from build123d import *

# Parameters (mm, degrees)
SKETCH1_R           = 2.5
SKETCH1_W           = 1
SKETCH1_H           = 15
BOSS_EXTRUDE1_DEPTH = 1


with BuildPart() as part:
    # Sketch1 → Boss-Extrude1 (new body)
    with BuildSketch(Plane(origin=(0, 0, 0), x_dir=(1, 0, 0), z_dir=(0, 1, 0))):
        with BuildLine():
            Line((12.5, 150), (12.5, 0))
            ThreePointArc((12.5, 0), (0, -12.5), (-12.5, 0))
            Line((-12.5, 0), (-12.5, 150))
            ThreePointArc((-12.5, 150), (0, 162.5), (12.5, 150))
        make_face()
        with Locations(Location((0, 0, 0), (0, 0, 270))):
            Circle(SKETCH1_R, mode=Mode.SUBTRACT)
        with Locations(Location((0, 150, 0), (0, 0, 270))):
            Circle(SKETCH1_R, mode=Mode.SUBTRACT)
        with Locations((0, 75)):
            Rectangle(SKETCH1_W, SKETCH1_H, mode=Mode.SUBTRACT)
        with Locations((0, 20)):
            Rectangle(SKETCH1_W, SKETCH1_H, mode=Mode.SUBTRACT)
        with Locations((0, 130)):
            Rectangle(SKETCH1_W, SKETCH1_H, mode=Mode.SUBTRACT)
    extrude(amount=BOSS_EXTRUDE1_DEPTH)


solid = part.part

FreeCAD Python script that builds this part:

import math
import FreeCAD as App
import Part
import Sketcher

V = App.Vector
Q = App.Units.Quantity


def add_polygon(sketch, points):
    """Adds a closed chain of lines whose ends are joined by coincident constraints."""
    first, n = sketch.GeometryCount, len(points)
    for a, b in zip(points, points[1:] + points[:1]):
        sketch.addGeometry(Part.LineSegment(App.Vector(*a, 0), App.Vector(*b, 0)), False)
    for i in range(n):
        sketch.addConstraint(Sketcher.Constraint("Coincident", first + i, 2, first + (i + 1) % n, 1))

doc = App.newDocument("Part")
body = doc.addObject("PartDesign::Body", "Body")

# Sketch on XZ plane
sketch1 = body.newObject("Sketcher::SketchObject", "Sketch")
sketch1.AttachmentSupport = (doc.getObject("XZ_Plane"), [""])
sketch1.MapMode = "FlatFace"
sketch1.addGeometry(Part.LineSegment(V(12.5, 0, 0), V(12.5, -150, 0)), False)  # 0
sketch1.addGeometry(Part.ArcOfCircle(Part.Circle(V(0, -150, 0), V(0, 0, 1), 12.5), math.radians(180), math.radians(360)), False)  # 1
sketch1.addGeometry(Part.LineSegment(V(-12.5, -150, 0), V(-12.5, 0, 0)), False)  # 2
sketch1.addGeometry(Part.ArcOfCircle(Part.Circle(V(0, 0, 0), V(0, 0, 1), 12.5), math.radians(0), math.radians(180)), False)  # 3
sketch1.addGeometry(Part.Circle(V(0, 0, 0), V(0, 0, 1), 2.5), False)  # 4
add_polygon(sketch1, [(-0.5, -12.5), (-0.5, -27.5), (0.5, -27.5), (0.5, -12.5)])  # lines 5-8
add_polygon(sketch1, [(-0.5, -67.5), (-0.5, -82.5), (0.5, -82.5), (0.5, -67.5)])  # lines 9-12
add_polygon(sketch1, [(-0.5, -122.5), (-0.5, -137.5), (0.5, -137.5), (0.5, -122.5)])  # lines 13-16
sketch1.addGeometry(Part.Circle(V(0, -150, 0), V(0, 0, 1), 2.5), False)  # 17
sketch1.addConstraint(Sketcher.Constraint("Tangent", 0, 2, 1, 2))
sketch1.addConstraint(Sketcher.Constraint("Tangent", 1, 1, 2, 1))
sketch1.addConstraint(Sketcher.Constraint("Tangent", 2, 2, 3, 2))
sketch1.addConstraint(Sketcher.Constraint("Tangent", 3, 1, 0, 1))
sketch1.addConstraint(Sketcher.Constraint("Vertical", 0))
sketch1.addConstraint(Sketcher.Constraint("Vertical", 2))
sketch1.addConstraint(Sketcher.Constraint("Vertical", 5))
sketch1.addConstraint(Sketcher.Constraint("Horizontal", 6))
sketch1.addConstraint(Sketcher.Constraint("Vertical", 7))
sketch1.addConstraint(Sketcher.Constraint("Horizontal", 8))
sketch1.addConstraint(Sketcher.Constraint("Vertical", 9))
sketch1.addConstraint(Sketcher.Constraint("Horizontal", 10))
sketch1.addConstraint(Sketcher.Constraint("Vertical", 11))
sketch1.addConstraint(Sketcher.Constraint("Horizontal", 12))
sketch1.addConstraint(Sketcher.Constraint("Vertical", 13))
sketch1.addConstraint(Sketcher.Constraint("Horizontal", 14))
sketch1.addConstraint(Sketcher.Constraint("Vertical", 15))
sketch1.addConstraint(Sketcher.Constraint("Horizontal", 16))
sketch1.addConstraint(Sketcher.Constraint("Coincident", 3, 3, -1, 1))
sketch1.addConstraint(Sketcher.Constraint("Coincident", 4, 3, -1, 1))
sketch1.addConstraint(Sketcher.Constraint("Coincident", 17, 3, 1, 3))
sketch1.addConstraint(Sketcher.Constraint("Equal", 4, 17))
sketch1.addConstraint(Sketcher.Constraint("Vertical", 8, 2, 9, 2))
sketch1.addConstraint(Sketcher.Constraint("Vertical", 7, 2, 10, 2))
sketch1.addConstraint(Sketcher.Constraint("Vertical", 12, 2, 13, 2))
sketch1.addConstraint(Sketcher.Constraint("Vertical", 11, 2, 14, 2))
sketch1.addConstraint(Sketcher.Constraint("Equal", 7, 9))
sketch1.addConstraint(Sketcher.Constraint("Equal", 11, 13))
sketch1.addConstraint(Sketcher.Constraint("Diameter", 4, Q("5 mm")))
sketch1.addConstraint(Sketcher.Constraint("Radius", 1, Q("12.5 mm")))
sketch1.addConstraint(Sketcher.Constraint("DistanceX", 6, 1, 6, 2, Q("1 mm")))
sketch1.addConstraint(Sketcher.Constraint("DistanceY", 0, 2, 0, 1, Q("150 mm")))
sketch1.addConstraint(Sketcher.Constraint("DistanceY", 5, 2, 5, 1, Q("15 mm")))
sketch1.addConstraint(Sketcher.Constraint("DistanceX", 2, 2, 5, 2, Q("12 mm")))
sketch1.addConstraint(Sketcher.Constraint("DistanceY", 9, 2, 5, 2, Q("55 mm")))
sketch1.addConstraint(Sketcher.Constraint("DistanceY", 13, 2, 9, 2, Q("55 mm")))
sketch1.addConstraint(Sketcher.Constraint("DistanceY", 5, 2, -1, 1, Q("27.5 mm")))
pad1 = body.newObject("PartDesign::Pad", "Pad")
pad1.Profile = sketch1
pad1.Length = 1
pad1.Reversed = True

doc.recompute()
